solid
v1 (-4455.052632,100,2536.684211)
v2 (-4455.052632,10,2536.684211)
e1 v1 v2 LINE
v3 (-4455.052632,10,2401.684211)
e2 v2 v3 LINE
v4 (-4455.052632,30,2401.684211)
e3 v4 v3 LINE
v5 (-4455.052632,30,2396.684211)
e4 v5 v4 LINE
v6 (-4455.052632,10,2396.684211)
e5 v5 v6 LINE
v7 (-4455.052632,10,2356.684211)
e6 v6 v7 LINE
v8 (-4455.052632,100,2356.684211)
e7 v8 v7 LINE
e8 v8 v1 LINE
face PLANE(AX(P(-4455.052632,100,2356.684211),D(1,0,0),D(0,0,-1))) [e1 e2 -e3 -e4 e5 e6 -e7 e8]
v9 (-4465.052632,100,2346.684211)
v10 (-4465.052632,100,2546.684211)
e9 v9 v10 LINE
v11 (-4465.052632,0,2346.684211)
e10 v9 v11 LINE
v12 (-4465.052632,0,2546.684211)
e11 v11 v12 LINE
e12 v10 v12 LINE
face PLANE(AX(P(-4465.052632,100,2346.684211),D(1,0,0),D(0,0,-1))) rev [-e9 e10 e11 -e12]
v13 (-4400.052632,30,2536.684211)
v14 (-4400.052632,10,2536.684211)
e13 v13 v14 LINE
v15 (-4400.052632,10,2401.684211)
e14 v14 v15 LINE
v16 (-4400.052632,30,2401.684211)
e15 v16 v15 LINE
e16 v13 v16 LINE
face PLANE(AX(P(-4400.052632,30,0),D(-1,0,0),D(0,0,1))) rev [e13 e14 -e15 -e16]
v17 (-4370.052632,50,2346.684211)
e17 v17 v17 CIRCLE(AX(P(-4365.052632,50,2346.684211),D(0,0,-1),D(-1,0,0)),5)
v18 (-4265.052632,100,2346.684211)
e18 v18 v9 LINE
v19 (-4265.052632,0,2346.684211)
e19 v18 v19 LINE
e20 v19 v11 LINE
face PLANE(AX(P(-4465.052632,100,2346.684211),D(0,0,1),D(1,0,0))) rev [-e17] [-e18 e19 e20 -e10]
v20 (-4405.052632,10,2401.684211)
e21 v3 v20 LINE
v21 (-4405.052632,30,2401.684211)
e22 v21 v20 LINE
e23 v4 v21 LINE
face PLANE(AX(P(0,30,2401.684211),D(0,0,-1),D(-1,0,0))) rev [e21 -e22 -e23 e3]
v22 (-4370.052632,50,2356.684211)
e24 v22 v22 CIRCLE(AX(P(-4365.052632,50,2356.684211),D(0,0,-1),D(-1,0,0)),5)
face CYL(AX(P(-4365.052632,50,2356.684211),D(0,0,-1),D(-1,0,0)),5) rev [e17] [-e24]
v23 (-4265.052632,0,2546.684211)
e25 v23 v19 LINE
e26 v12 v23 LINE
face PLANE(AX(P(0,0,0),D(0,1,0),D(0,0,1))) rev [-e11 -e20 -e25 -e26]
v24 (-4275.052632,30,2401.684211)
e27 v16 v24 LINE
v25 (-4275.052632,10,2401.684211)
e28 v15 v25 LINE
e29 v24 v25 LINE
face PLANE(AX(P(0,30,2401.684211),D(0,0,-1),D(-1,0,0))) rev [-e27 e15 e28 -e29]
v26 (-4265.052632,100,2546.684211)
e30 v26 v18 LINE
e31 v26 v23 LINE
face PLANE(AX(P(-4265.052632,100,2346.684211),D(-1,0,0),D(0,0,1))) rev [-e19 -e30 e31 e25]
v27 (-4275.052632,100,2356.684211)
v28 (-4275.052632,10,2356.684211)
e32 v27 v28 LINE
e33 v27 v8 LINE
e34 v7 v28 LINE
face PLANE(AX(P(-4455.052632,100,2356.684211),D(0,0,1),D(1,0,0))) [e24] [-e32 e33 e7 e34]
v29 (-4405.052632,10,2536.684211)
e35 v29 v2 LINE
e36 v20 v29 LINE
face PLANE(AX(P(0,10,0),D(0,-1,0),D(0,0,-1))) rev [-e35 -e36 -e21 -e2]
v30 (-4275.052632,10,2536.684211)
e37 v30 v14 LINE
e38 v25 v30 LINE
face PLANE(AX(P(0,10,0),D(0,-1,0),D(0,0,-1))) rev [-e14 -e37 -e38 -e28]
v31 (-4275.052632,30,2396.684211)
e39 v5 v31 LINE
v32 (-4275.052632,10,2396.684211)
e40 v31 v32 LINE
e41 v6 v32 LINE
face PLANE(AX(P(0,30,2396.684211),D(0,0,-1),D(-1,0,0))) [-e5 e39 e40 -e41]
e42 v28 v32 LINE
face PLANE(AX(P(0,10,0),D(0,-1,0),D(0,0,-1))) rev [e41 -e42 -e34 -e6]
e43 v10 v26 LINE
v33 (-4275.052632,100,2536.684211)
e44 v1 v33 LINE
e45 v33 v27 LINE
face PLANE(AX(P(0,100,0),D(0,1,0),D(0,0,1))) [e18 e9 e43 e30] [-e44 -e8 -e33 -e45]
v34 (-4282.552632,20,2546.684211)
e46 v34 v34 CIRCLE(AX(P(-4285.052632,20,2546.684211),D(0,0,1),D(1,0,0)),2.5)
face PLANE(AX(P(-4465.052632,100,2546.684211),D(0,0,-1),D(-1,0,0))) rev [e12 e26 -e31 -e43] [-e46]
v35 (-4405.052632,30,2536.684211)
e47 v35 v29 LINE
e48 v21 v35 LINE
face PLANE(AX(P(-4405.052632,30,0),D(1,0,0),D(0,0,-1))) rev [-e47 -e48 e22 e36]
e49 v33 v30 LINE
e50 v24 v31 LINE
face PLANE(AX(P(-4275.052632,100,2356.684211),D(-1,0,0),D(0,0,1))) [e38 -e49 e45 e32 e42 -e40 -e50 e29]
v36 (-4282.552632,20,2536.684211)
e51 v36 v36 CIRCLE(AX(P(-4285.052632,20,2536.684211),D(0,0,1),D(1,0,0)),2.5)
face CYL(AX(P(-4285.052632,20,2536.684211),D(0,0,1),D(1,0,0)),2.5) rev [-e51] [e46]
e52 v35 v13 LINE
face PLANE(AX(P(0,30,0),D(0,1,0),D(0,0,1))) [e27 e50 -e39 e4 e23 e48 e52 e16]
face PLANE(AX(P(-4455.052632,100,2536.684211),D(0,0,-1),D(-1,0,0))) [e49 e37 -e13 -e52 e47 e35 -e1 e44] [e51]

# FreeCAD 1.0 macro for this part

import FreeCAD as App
import Part
import Sketcher

V = App.Vector

doc = App.newDocument("Part")
params = doc.addObject("Spreadsheet::Sheet", "Params")
for row, (alias, value) in enumerate([
    ("sketch1_width", "200 mm"),
    ("sketch1_width2", "180 mm"),
    ("pad1_length", "100 mm"),
    ("sketch2_width", "200 mm"),
    ("pad2_length", "10 mm"),
    ("sketch3_diameter", "10 mm"),
    ("pocket1_length", "10 mm"),
    ("sketch4_width", "5 mm"),
    ("sketch4_width2", "125 mm"),
    ("sketch4_width3", "180 mm"),
    ("sketch4_height", "135 mm"),
    ("pad3_length", "20 mm"),
    ("sketch5_diameter", "5 mm"),
    ("pocket2_length", "10 mm"),
], start=1):
    params.set(f"A{row}", alias)
    params.set(f"B{row}", "=" + value)
    params.setAlias(f"B{row}", alias)

body = doc.addObject("PartDesign::Body", "Body")

sketch1 = body.newObject("Sketcher::SketchObject", "Sketch")
sketch1.AttachmentSupport = (doc.getObject("XZ_Plane"), [""])
sketch1.MapMode = "FlatFace"
sketch1.addGeometry(Part.LineSegment(V(-4465, 2347, 0), V(-4465, 2547, 0)), False)
sketch1.addGeometry(Part.LineSegment(V(-4465, 2547, 0), V(-4265, 2547, 0)), False)
sketch1.addGeometry(Part.LineSegment(V(-4265, 2547, 0), V(-4265, 2347, 0)), False)
sketch1.addGeometry(Part.LineSegment(V(-4265, 2347, 0), V(-4465, 2347, 0)), False)
sketch1.addGeometry(Part.LineSegment(V(-4275, 2537, 0), V(-4455, 2537, 0)), False)
sketch1.addGeometry(Part.LineSegment(V(-4455, 2537, 0), V(-4455, 2357, 0)), False)
sketch1.addGeometry(Part.LineSegment(V(-4455, 2357, 0), V(-4275, 2357, 0)), False)
sketch1.addGeometry(Part.LineSegment(V(-4275, 2357, 0), V(-4275, 2537, 0)), False)
sketch1.addConstraint(Sketcher.Constraint("Coincident", 0, 2, 1, 1))
sketch1.addConstraint(Sketcher.Constraint("Coincident", 1, 2, 2, 1))
sketch1.addConstraint(Sketcher.Constraint("Coincident", 2, 2, 3, 1))
sketch1.addConstraint(Sketcher.Constraint("Coincident", 3, 2, 0, 1))
sketch1.addConstraint(Sketcher.Constraint("Coincident", 4, 2, 5, 1))
sketch1.addConstraint(Sketcher.Constraint("Coincident", 5, 2, 6, 1))
sketch1.addConstraint(Sketcher.Constraint("Coincident", 6, 2, 7, 1))
sketch1.addConstraint(Sketcher.Constraint("Coincident", 7, 2, 4, 1))
sketch1.addConstraint(Sketcher.Constraint("Vertical", 0))
sketch1.addConstraint(Sketcher.Constraint("Horizontal", 1))
sketch1.addConstraint(Sketcher.Constraint("Vertical", 2))
sketch1.addConstraint(Sketcher.Constraint("Horizontal", 3))
sketch1.addConstraint(Sketcher.Constraint("Horizontal", 4))
sketch1.addConstraint(Sketcher.Constraint("Vertical", 5))
sketch1.addConstraint(Sketcher.Constraint("Horizontal", 6))
sketch1.addConstraint(Sketcher.Constraint("Vertical", 7))
sketch1.addConstraint(Sketcher.Constraint("Equal", 3, 0))
sketch1.addConstraint(Sketcher.Constraint("Equal", 6, 5))
sketch1.addConstraint(Sketcher.Constraint("DistanceX", 1, 1, 1, 2, 200.0))
sketch1.addConstraint(Sketcher.Constraint("DistanceX", 4, 2, 4, 1, 180.0))
sketch1.addConstraint(Sketcher.Constraint("DistanceX", 0, 2, 4, 2, 10.0))
sketch1.addConstraint(Sketcher.Constraint("DistanceY", 4, 2, 0, 2, 10.0))
sketch1.addConstraint(Sketcher.Constraint("DistanceX", 0, 2, -1, 1, 4465.052632))
sketch1.addConstraint(Sketcher.Constraint("DistanceY", -1, 1, 0, 2, 2546.684211))
sketch1.setExpression("Constraints[18]", "Params.sketch1_width")
sketch1.setExpression("Constraints[19]", "Params.sketch1_width2")
pad1 = body.newObject("PartDesign::Pad", "Pad")
pad1.Profile = sketch1
pad1.setExpression("Length", "Params.pad1_length")
pad1.Reversed = True

sketch2 = body.newObject("Sketcher::SketchObject", "Sketch001")
sketch2.AttachmentSupport = (doc.getObject("XZ_Plane"), [""])
sketch2.MapMode = "FlatFace"
sketch2.addGeometry(Part.LineSegment(V(-4465, 2347, 0), V(-4465, 2547, 0)), False)
sketch2.addGeometry(Part.LineSegment(V(-4465, 2547, 0), V(-4265, 2547, 0)), False)
sketch2.addGeometry(Part.LineSegment(V(-4265, 2547, 0), V(-4265, 2347, 0)), False)
sketch2.addGeometry(Part.LineSegment(V(-4265, 2347, 0), V(-4465, 2347, 0)), False)
sketch2.addConstraint(Sketcher.Constraint("Coincident", 0, 2, 1, 1))
sketch2.addConstraint(Sketcher.Constraint("Coincident", 1, 2, 2, 1))
sketch2.addConstraint(Sketcher.Constraint("Coincident", 2, 2, 3, 1))
sketch2.addConstraint(Sketcher.Constraint("Coincident", 3, 2, 0, 1))
sketch2.addConstraint(Sketcher.Constraint("Vertical", 0))
sketch2.addConstraint(Sketcher.Constraint("Horizontal", 1))
sketch2.addConstraint(Sketcher.Constraint("Vertical", 2))
sketch2.addConstraint(Sketcher.Constraint("Horizontal", 3))
sketch2.addConstraint(Sketcher.Constraint("Equal", 3, 0))
sketch2.addConstraint(Sketcher.Constraint("DistanceX", 1, 1, 1, 2, 200.0))
sketch2.addConstraint(Sketcher.Constraint("DistanceX", 0, 2, -1, 1, 4465.052632))
sketch2.addConstraint(Sketcher.Constraint("DistanceY", -1, 1, 0, 2, 2546.684211))
sketch2.setExpression("Constraints[9]", "Params.sketch2_width")
pad2 = body.newObject("PartDesign::Pad", "Pad001")
pad2.Profile = sketch2
pad2.setExpression("Length", "Params.pad2_length")
pad2.Reversed = True

sketch3 = body.newObject("Sketcher::SketchObject", "Sketch002")
sketch3.AttachmentSupport = (doc.getObject("XY_Plane"), [""])
sketch3.MapMode = "FlatFace"
sketch3.AttachmentOffset = App.Placement(V(0, 0, 2346.684211), App.Rotation())
sketch3.addGeometry(Part.Circle(V(-4365, 50, 0), V(0, 0, 1), 5), False)
sketch3.addConstraint(Sketcher.Constraint("Diameter", 0, 10.0))
sketch3.addConstraint(Sketcher.Constraint("DistanceY", -1, 1, 0, 3, 50.0))
sketch3.addConstraint(Sketcher.Constraint("DistanceX", 0, 3, -1, 1, 4365.052632))
sketch3.setExpression("Constraints[0]", "Params.sketch3_diameter")
pocket1 = body.newObject("PartDesign::Pocket", "Pocket")
pocket1.Profile = sketch3
pocket1.setExpression("Length", "Params.pocket1_length")
pocket1.Reversed = True

sketch4 = body.newObject("Sketcher::SketchObject", "Sketch003")
sketch4.AttachmentSupport = (doc.getObject("XZ_Plane"), [""])
sketch4.MapMode = "FlatFace"
sketch4.AttachmentOffset = App.Placement(V(0, 0, -10), App.Rotation())
sketch4.addGeometry(Part.LineSegment(V(-4405, 2402, 0), V(-4405, 2537, 0)), False)
sketch4.addGeometry(Part.LineSegment(V(-4405, 2537, 0), V(-4400, 2537, 0)), False)
sketch4.addGeometry(Part.LineSegment(V(-4400, 2537, 0), V(-4400, 2402, 0)), False)
sketch4.addGeometry(Part.LineSegment(V(-4400, 2402, 0), V(-4275, 2402, 0)), False)
sketch4.addGeometry(Part.LineSegment(V(-4275, 2402, 0), V(-4275, 2397, 0)), False)
sketch4.addGeometry(Part.LineSegment(V(-4275, 2397, 0), V(-4455, 2397, 0)), False)
sketch4.addGeometry(Part.LineSegment(V(-4455, 2397, 0), V(-4455, 2402, 0)), False)
sketch4.addGeometry(Part.LineSegment(V(-4455, 2402, 0), V(-4405, 2402, 0)), False)
sketch4.addConstraint(Sketcher.Constraint("Coincident", 0, 2, 1, 1))
sketch4.addConstraint(Sketcher.Constraint("Coincident", 1, 2, 2, 1))
sketch4.addConstraint(Sketcher.Constraint("Coincident", 2, 2, 3, 1))
sketch4.addConstraint(Sketcher.Constraint("Coincident", 3, 2, 4, 1))
sketch4.addConstraint(Sketcher.Constraint("Coincident", 4, 2, 5, 1))
sketch4.addConstraint(Sketcher.Constraint("Coincident", 5, 2, 6, 1))
sketch4.addConstraint(Sketcher.Constraint("Coincident", 6, 2, 7, 1))
sketch4.addConstraint(Sketcher.Constraint("Coincident", 7, 2, 0, 1))
sketch4.addConstraint(Sketcher.Constraint("Vertical", 0))
sketch4.addConstraint(Sketcher.Constraint("Horizontal", 1))
sketch4.addConstraint(Sketcher.Constraint("Vertical", 2))
sketch4.addConstraint(Sketcher.Constraint("Horizontal", 3))
sketch4.addConstraint(Sketcher.Constraint("Vertical", 4))
sketch4.addConstraint(Sketcher.Constraint("Horizontal", 5))
sketch4.addConstraint(Sketcher.Constraint("Vertical", 6))
sketch4.addConstraint(Sketcher.Constraint("Horizontal", 7))
sketch4.addConstraint(Sketcher.Constraint("Horizontal", 3, 2, 6, 2))
sketch4.addConstraint(Sketcher.Constraint("Equal", 1, 4))
sketch4.addConstraint(Sketcher.Constraint("DistanceX", 1, 1, 1, 2, 5.0))
sketch4.addConstraint(Sketcher.Constraint("DistanceX", 3, 1, 3, 2, 125.0))
sketch4.addConstraint(Sketcher.Constraint("DistanceX", 5, 2, 5, 1, 180.0))
sketch4.addConstraint(Sketcher.Constraint("DistanceY", 0, 1, 0, 2, 135.0))
sketch4.addConstraint(Sketcher.Constraint("DistanceX", 0, 2, -1, 1, 4405.052632))
sketch4.addConstraint(Sketcher.Constraint("DistanceY", -1, 1, 0, 2, 2536.684211))
sketch4.setExpression("Constraints[18]", "Params.sketch4_width")
sketch4.setExpression("Constraints[19]", "Params.sketch4_width2")
sketch4.setExpression("Constraints[20]", "Params.sketch4_width3")
sketch4.setExpression("Constraints[21]", "Params.sketch4_height")
pad3 = body.newObject("PartDesign::Pad", "Pad002")
pad3.Profile = sketch4
pad3.setExpression("Length", "Params.pad3_length")
pad3.Reversed = True

sketch5 = body.newObject("Sketcher::SketchObject", "Sketch004")
sketch5.AttachmentSupport = (doc.getObject("XY_Plane"), [""])
sketch5.MapMode = "FlatFace"
sketch5.AttachmentOffset = App.Placement(V(0, 0, 2546.684211), App.Rotation())
sketch5.addGeometry(Part.Circle(V(-4285.1, 20, 0), V(0, 0, 1), 2.5), False)
sketch5.addConstraint(Sketcher.Constraint("Diameter", 0, 5.0))
sketch5.addConstraint(Sketcher.Constraint("DistanceY", -1, 1, 0, 3, 20.0))
sketch5.addConstraint(Sketcher.Constraint("DistanceX", 0, 3, -1, 1, 4285.052632))
sketch5.setExpression("Constraints[0]", "Params.sketch5_diameter")
pocket2 = body.newObject("PartDesign::Pocket", "Pocket001")
pocket2.Profile = sketch5
pocket2.setExpression("Length", "Params.pocket2_length")

doc.recompute()
